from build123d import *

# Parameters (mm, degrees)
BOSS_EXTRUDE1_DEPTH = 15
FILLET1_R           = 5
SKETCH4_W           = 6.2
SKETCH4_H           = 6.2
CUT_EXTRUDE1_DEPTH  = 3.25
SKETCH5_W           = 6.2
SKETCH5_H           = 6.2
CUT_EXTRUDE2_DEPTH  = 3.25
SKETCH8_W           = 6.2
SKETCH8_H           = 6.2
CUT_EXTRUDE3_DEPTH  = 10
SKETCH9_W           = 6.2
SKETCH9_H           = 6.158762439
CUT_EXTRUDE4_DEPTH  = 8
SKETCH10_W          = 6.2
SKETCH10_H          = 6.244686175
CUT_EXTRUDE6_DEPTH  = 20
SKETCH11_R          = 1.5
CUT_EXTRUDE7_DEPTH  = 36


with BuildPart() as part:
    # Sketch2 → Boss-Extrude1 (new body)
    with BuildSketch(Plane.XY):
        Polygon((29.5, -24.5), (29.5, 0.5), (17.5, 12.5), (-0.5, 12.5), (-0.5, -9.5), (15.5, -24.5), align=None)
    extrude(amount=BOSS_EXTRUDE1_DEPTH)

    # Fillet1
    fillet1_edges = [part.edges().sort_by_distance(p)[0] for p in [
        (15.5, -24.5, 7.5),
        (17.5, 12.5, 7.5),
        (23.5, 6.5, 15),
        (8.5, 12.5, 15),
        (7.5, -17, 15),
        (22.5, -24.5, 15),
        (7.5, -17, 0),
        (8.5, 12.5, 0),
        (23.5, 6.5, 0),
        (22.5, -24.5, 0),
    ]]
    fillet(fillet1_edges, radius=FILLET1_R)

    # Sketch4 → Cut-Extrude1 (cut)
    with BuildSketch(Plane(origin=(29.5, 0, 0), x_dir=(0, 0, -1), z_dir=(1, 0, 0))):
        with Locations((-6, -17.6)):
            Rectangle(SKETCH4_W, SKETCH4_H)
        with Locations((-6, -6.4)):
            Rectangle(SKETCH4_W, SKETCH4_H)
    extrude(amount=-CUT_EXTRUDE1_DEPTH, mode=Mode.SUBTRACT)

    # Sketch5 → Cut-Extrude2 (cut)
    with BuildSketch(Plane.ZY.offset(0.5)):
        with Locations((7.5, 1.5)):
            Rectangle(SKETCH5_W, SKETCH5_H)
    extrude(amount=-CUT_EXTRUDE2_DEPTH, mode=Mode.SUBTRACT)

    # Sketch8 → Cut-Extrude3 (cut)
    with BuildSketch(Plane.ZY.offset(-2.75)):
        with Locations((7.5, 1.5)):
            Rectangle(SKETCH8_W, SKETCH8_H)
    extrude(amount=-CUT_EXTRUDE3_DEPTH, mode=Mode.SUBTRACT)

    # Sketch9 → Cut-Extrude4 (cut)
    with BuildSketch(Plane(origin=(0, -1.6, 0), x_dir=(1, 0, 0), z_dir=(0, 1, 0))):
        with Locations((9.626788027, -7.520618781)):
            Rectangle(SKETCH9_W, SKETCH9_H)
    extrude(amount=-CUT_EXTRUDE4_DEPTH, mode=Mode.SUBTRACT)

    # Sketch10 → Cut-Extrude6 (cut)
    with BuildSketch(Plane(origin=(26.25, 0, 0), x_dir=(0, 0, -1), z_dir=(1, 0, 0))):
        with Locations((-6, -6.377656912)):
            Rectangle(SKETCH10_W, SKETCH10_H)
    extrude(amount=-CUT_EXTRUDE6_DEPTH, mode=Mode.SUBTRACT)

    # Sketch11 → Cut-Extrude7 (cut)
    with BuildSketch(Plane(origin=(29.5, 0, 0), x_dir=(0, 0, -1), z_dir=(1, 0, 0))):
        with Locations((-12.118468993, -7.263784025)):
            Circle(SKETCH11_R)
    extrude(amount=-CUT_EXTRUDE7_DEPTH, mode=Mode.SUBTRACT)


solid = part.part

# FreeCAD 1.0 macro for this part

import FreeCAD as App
import Part
import Sketcher

V = App.Vector
Q = App.Units.Quantity


def edges_at(feature, points):
    """Names of the edges that pass closest to the given points."""
    edges = feature.Shape.Edges
    near = lambda p: min(range(len(edges)), key=lambda i: edges[i].distToShape(Part.Vertex(*p))[0])
    return sorted({f"Edge{near(p) + 1}" for p in points})

doc = App.newDocument("Part")
params = doc.addObject("Spreadsheet::Sheet", "Params")
for row, (alias, value) in enumerate([
    ("sketch1_width", "18 mm"),
    ("sketch1_width2", "14 mm"),
    ("sketch1_height", "25 mm"),
    ("sketch1_height2", "22 mm"),
    ("pad1_length", "15 mm"),
    ("fillet_radius", "5 mm"),
    ("sketch2_width", "6.2 mm"),
    ("pocket1_length", "3.25 mm"),
    ("sketch3_width", "6.2 mm"),
    ("pocket2_length", "3.25 mm"),
    ("sketch4_width", "6.2 mm"),
    ("pocket3_length", "10 mm"),
    ("sketch5_width", "6.2 mm"),
    ("pocket4_length", "8 mm"),
    ("sketch6_height", "6.2 mm"),
    ("pocket5_length", "20 mm"),
    ("sketch7_diameter", "3 mm"),
    ("pocket6_length", "36 mm"),
], start=1):
    params.set(f"A{row}", alias)
    params.set(f"B{row}", "=" + value)
    params.setAlias(f"B{row}", alias)

body = doc.addObject("PartDesign::Body", "Body")

sketch1 = doc.addObject("Sketcher::SketchObject", "Sketch")
body.addObject(sketch1)
sketch1.AttachmentSupport = (doc.XY_Plane, [""])
sketch1.MapMode = "FlatFace"
sketch1.addGeometry(Part.LineSegment(V(30, -24, 0), V(30, 0, 0)), False)
sketch1.addGeometry(Part.LineSegment(V(30, 0, 0), V(18, 12, 0)), False)
sketch1.addGeometry(Part.LineSegment(V(18, 12, 0), V(0, 12, 0)), False)
sketch1.addGeometry(Part.LineSegment(V(0, 12, 0), V(0, -10, 0)), False)
sketch1.addGeometry(Part.LineSegment(V(0, -10, 0), V(16, -24, 0)), False)
sketch1.addGeometry(Part.LineSegment(V(16, -24, 0), V(30, -24, 0)), False)
sketch1.addConstraint(Sketcher.Constraint("Coincident", 0, 2, 1, 1))
sketch1.addConstraint(Sketcher.Constraint("Coincident", 1, 2, 2, 1))
sketch1.addConstraint(Sketcher.Constraint("Coincident", 2, 2, 3, 1))
sketch1.addConstraint(Sketcher.Constraint("Coincident", 3, 2, 4, 1))
sketch1.addConstraint(Sketcher.Constraint("Coincident", 4, 2, 5, 1))
sketch1.addConstraint(Sketcher.Constraint("Coincident", 5, 2, 0, 1))
sketch1.addConstraint(Sketcher.Constraint("Vertical", 0))
sketch1.addConstraint(Sketcher.Constraint("Horizontal", 2))
sketch1.addConstraint(Sketcher.Constraint("Vertical", 3))
sketch1.addConstraint(Sketcher.Constraint("Horizontal", 5))
sketch1.addConstraint(Sketcher.Constraint("DistanceX", 2, 2, 2, 1, 18.0))
sketch1.addConstraint(Sketcher.Constraint("DistanceX", 5, 1, 5, 2, 14.0))
sketch1.addConstraint(Sketcher.Constraint("DistanceY", 0, 1, 0, 2, 25.0))
sketch1.addConstraint(Sketcher.Constraint("DistanceY", 3, 2, 3, 1, 22.0))
sketch1.addConstraint(Sketcher.Constraint("Angle", 1, Q("135 deg")))
sketch1.addConstraint(Sketcher.Constraint("DistanceX", 1, 2, 0, 2, 12.0))
sketch1.addConstraint(Sketcher.Constraint("DistanceX", -1, 1, 0, 2, 29.5))
sketch1.addConstraint(Sketcher.Constraint("DistanceY", -1, 1, 0, 2, 0.5))
sketch1.setExpression("Constraints[10]", "Params.sketch1_width")
sketch1.setExpression("Constraints[11]", "Params.sketch1_width2")
sketch1.setExpression("Constraints[12]", "Params.sketch1_height")
sketch1.setExpression("Constraints[13]", "Params.sketch1_height2")
pad1 = doc.addObject("PartDesign::Pad", "Pad")
body.addObject(pad1)
pad1.Profile = sketch1
pad1.setExpression("Length", "Params.pad1_length")
doc.recompute()

fillet = doc.addObject("PartDesign::Fillet", "Fillet")
body.addObject(fillet)
fillet.Base = (pad1, edges_at(pad1, [
    (15.5, -24.5, 7.5),
    (17.5, 12.5, 7.5),
    (23.5, 6.5, 15),
    (8.5, 12.5, 15),
    (7.5, -17, 15),
    (22.5, -24.5, 15),
    (7.5, -17, 0),
    (8.5, 12.5, 0),
    (23.5, 6.5, 0),
    (22.5, -24.5, 0),
]))
fillet.setExpression("Radius", "Params.fillet_radius")

sketch2 = doc.addObject("Sketcher::SketchObject", "Sketch001")
body.addObject(sketch2)
sketch2.AttachmentSupport = (doc.YZ_Plane, [""])
sketch2.MapMode = "FlatFace"
sketch2.AttachmentOffset = App.Placement(V(0, 0, 29.5), App.Rotation())
sketch2.addGeometry(Part.LineSegment(V(-14, 9, 0), V(-21, 9, 0)), False)
sketch2.addGeometry(Part.LineSegment(V(-21, 9, 0), V(-21, 3, 0)), False)
sketch2.addGeometry(Part.LineSegment(V(-21, 3, 0), V(-14, 3, 0)), False)
sketch2.addGeometry(Part.LineSegment(V(-14, 3, 0), V(-14, 9, 0)), False)
sketch2.addGeometry(Part.LineSegment(V(-3, 9, 0), V(-10, 9, 0)), False)
sketch2.addGeometry(Part.LineSegment(V(-10, 9, 0), V(-10, 3, 0)), False)
sketch2.addGeometry(Part.LineSegment(V(-10, 3, 0), V(-3, 3, 0)), False)
sketch2.addGeometry(Part.LineSegment(V(-3, 3, 0), V(-3, 9, 0)), False)
sketch2.addConstraint(Sketcher.Constraint("Coincident", 0, 2, 1, 1))
sketch2.addConstraint(Sketcher.Constraint("Coincident", 1, 2, 2, 1))
sketch2.addConstraint(Sketcher.Constraint("Coincident", 2, 2, 3, 1))
sketch2.addConstraint(Sketcher.Constraint("Coincident", 3, 2, 0, 1))
sketch2.addConstraint(Sketcher.Constraint("Coincident", 4, 2, 5, 1))
sketch2.addConstraint(Sketcher.Constraint("Coincident", 5, 2, 6, 1))
sketch2.addConstraint(Sketcher.Constraint("Coincident", 6, 2, 7, 1))
sketch2.addConstraint(Sketcher.Constraint("Coincident", 7, 2, 4, 1))
sketch2.addConstraint(Sketcher.Constraint("Horizontal", 0))
sketch2.addConstraint(Sketcher.Constraint("Vertical", 1))
sketch2.addConstraint(Sketcher.Constraint("Horizontal", 2))
sketch2.addConstraint(Sketcher.Constraint("Vertical", 3))
sketch2.addConstraint(Sketcher.Constraint("Horizontal", 4))
sketch2.addConstraint(Sketcher.Constraint("Vertical", 5))
sketch2.addConstraint(Sketcher.Constraint("Horizontal", 6))
sketch2.addConstraint(Sketcher.Constraint("Vertical", 7))
sketch2.addConstraint(Sketcher.Constraint("Horizontal", 3, 2, 4, 2))
sketch2.addConstraint(Sketcher.Constraint("Horizontal", 2, 2, 5, 2))
sketch2.addConstraint(Sketcher.Constraint("Equal", 2, 4))
sketch2.addConstraint(Sketcher.Constraint("Equal", 6, 1))
sketch2.addConstraint(Sketcher.Constraint("DistanceX", 0, 2, 0, 1, 6.2))
sketch2.addConstraint(Sketcher.Constraint("DistanceX", 3, 2, 4, 2, 5.0))
sketch2.addConstraint(Sketcher.Constraint("DistanceX", 0, 2, -1, 1, 20.7))
sketch2.addConstraint(Sketcher.Constraint("DistanceY", -1, 1, 0, 2, 9.1))
sketch2.setExpression("Constraints[20]", "Params.sketch2_width")
pocket1 = doc.addObject("PartDesign::Pocket", "Pocket")
body.addObject(pocket1)
pocket1.Profile = sketch2
pocket1.setExpression("Length", "Params.pocket1_length")

sketch3 = doc.addObject("Sketcher::SketchObject", "Sketch002")
body.addObject(sketch3)
sketch3.AttachmentSupport = (doc.YZ_Plane, [""])
sketch3.MapMode = "FlatFace"
sketch3.AttachmentOffset = App.Placement(V(0, 0, -0.5), App.Rotation())
sketch3.addGeometry(Part.LineSegment(V(5, 4, 0), V(-2, 4, 0)), False)
sketch3.addGeometry(Part.LineSegment(V(-2, 4, 0), V(-2, 11, 0)), False)
sketch3.addGeometry(Part.LineSegment(V(-2, 11, 0), V(5, 11, 0)), False)
sketch3.addGeometry(Part.LineSegment(V(5, 11, 0), V(5, 4, 0)), False)
sketch3.addConstraint(Sketcher.Constraint("Coincident", 0, 2, 1, 1))
sketch3.addConstraint(Sketcher.Constraint("Coincident", 1, 2, 2, 1))
sketch3.addConstraint(Sketcher.Constraint("Coincident", 2, 2, 3, 1))
sketch3.addConstraint(Sketcher.Constraint("Coincident", 3, 2, 0, 1))
sketch3.addConstraint(Sketcher.Constraint("Horizontal", 0))
sketch3.addConstraint(Sketcher.Constraint("Vertical", 1))
sketch3.addConstraint(Sketcher.Constraint("Horizontal", 2))
sketch3.addConstraint(Sketcher.Constraint("Vertical", 3))
sketch3.addConstraint(Sketcher.Constraint("Equal", 2, 1))
sketch3.addConstraint(Sketcher.Constraint("DistanceX", 0, 2, 0, 1, 6.2))
sketch3.addConstraint(Sketcher.Constraint("DistanceX", 0, 2, -1, 1, 1.6))
sketch3.addConstraint(Sketcher.Constraint("DistanceY", -1, 1, 0, 2, 4.4))
sketch3.setExpression("Constraints[9]", "Params.sketch3_width")
pocket2 = doc.addObject("PartDesign::Pocket", "Pocket001")
body.addObject(pocket2)
pocket2.Profile = sketch3
pocket2.setExpression("Length", "Params.pocket2_length")
pocket2.Reversed = True

sketch4 = doc.addObject("Sketcher::SketchObject", "Sketch003")
body.addObject(sketch4)
sketch4.AttachmentSupport = (doc.YZ_Plane, [""])
sketch4.MapMode = "FlatFace"
sketch4.AttachmentOffset = App.Placement(V(0, 0, 2.75), App.Rotation())
sketch4.addGeometry(Part.LineSegment(V(5, 4, 0), V(-2, 4, 0)), False)
sketch4.addGeometry(Part.LineSegment(V(-2, 4, 0), V(-2, 11, 0)), False)
sketch4.addGeometry(Part.LineSegment(V(-2, 11, 0), V(5, 11, 0)), False)
sketch4.addGeometry(Part.LineSegment(V(5, 11, 0), V(5, 4, 0)), False)
sketch4.addConstraint(Sketcher.Constraint("Coincident", 0, 2, 1, 1))
sketch4.addConstraint(Sketcher.Constraint("Coincident", 1, 2, 2, 1))
sketch4.addConstraint(Sketcher.Constraint("Coincident", 2, 2, 3, 1))
sketch4.addConstraint(Sketcher.Constraint("Coincident", 3, 2, 0, 1))
sketch4.addConstraint(Sketcher.Constraint("Horizontal", 0))
sketch4.addConstraint(Sketcher.Constraint("Vertical", 1))
sketch4.addConstraint(Sketcher.Constraint("Horizontal", 2))
sketch4.addConstraint(Sketcher.Constraint("Vertical", 3))
sketch4.addConstraint(Sketcher.Constraint("Equal", 2, 1))
sketch4.addConstraint(Sketcher.Constraint("DistanceX", 0, 2, 0, 1, 6.2))
sketch4.addConstraint(Sketcher.Constraint("DistanceX", 0, 2, -1, 1, 1.6))
sketch4.addConstraint(Sketcher.Constraint("DistanceY", -1, 1, 0, 2, 4.4))
sketch4.setExpression("Constraints[9]", "Params.sketch4_width")
pocket3 = doc.addObject("PartDesign::Pocket", "Pocket002")
body.addObject(pocket3)
pocket3.Profile = sketch4
pocket3.setExpression("Length", "Params.pocket3_length")
pocket3.Reversed = True

sketch5 = doc.addObject("Sketcher::SketchObject", "Sketch004")
body.addObject(sketch5)
sketch5.AttachmentSupport = (doc.XZ_Plane, [""])
sketch5.MapMode = "FlatFace"
sketch5.AttachmentOffset = App.Placement(V(0, 0, 1.6), App.Rotation())
sketch5.addGeometry(Part.LineSegment(V(7, 4, 0), V(7, 11, 0)), False)
sketch5.addGeometry(Part.LineSegment(V(7, 11, 0), V(13, 11, 0)), False)
sketch5.addGeometry(Part.LineSegment(V(13, 11, 0), V(13, 4, 0)), False)
sketch5.addGeometry(Part.LineSegment(V(13, 4, 0), V(7, 4, 0)), False)
sketch5.addConstraint(Sketcher.Constraint("Coincident", 0, 2, 1, 1))
sketch5.addConstraint(Sketcher.Constraint("Coincident", 1, 2, 2, 1))
sketch5.addConstraint(Sketcher.Constraint("Coincident", 2, 2, 3, 1))
sketch5.addConstraint(Sketcher.Constraint("Coincident", 3, 2, 0, 1))
sketch5.addConstraint(Sketcher.Constraint("Vertical", 0))
sketch5.addConstraint(Sketcher.Constraint("Horizontal", 1))
sketch5.addConstraint(Sketcher.Constraint("Vertical", 2))
sketch5.addConstraint(Sketcher.Constraint("Horizontal", 3))
sketch5.addConstraint(Sketcher.Constraint("DistanceX", 1, 1, 1, 2, 6.2))
sketch5.addConstraint(Sketcher.Constraint("DistanceY", -1, 1, 0, 2, 10.6))
sketch5.addConstraint(Sketcher.Constraint("DistanceY", 0, 1, 0, 2, 6.158762))
sketch5.addConstraint(Sketcher.Constraint("DistanceX", -1, 1, 0, 2, 6.526788))
sketch5.setExpression("Constraints[8]", "Params.sketch5_width")
pocket4 = doc.addObject("PartDesign::Pocket", "Pocket003")
body.addObject(pocket4)
pocket4.Profile = sketch5
pocket4.setExpression("Length", "Params.pocket4_length")
pocket4.Reversed = True

sketch6 = doc.addObject("Sketcher::SketchObject", "Sketch005")
body.addObject(sketch6)
sketch6.AttachmentSupport = (doc.YZ_Plane, [""])
sketch6.MapMode = "FlatFace"
sketch6.AttachmentOffset = App.Placement(V(0, 0, 26.25), App.Rotation())
sketch6.addGeometry(Part.LineSegment(V(-3, 9, 0), V(-9, 9, 0)), False)
sketch6.addGeometry(Part.LineSegment(V(-9, 9, 0), V(-9, 3, 0)), False)
sketch6.addGeometry(Part.LineSegment(V(-9, 3, 0), V(-3, 3, 0)), False)
sketch6.addGeometry(Part.LineSegment(V(-3, 3, 0), V(-3, 9, 0)), False)
sketch6.addConstraint(Sketcher.Constraint("Coincident", 0, 2, 1, 1))
sketch6.addConstraint(Sketcher.Constraint("Coincident", 1, 2, 2, 1))
sketch6.addConstraint(Sketcher.Constraint("Coincident", 2, 2, 3, 1))
sketch6.addConstraint(Sketcher.Constraint("Coincident", 3, 2, 0, 1))
sketch6.addConstraint(Sketcher.Constraint("Horizontal", 0))
sketch6.addConstraint(Sketcher.Constraint("Vertical", 1))
sketch6.addConstraint(Sketcher.Constraint("Horizontal", 2))
sketch6.addConstraint(Sketcher.Constraint("Vertical", 3))
sketch6.addConstraint(Sketcher.Constraint("DistanceY", 1, 2, 1, 1, 6.2))
sketch6.addConstraint(Sketcher.Constraint("DistanceX", 0, 2, -1, 1, 9.5))
sketch6.addConstraint(Sketcher.Constraint("DistanceY", -1, 1, 0, 2, 9.1))
sketch6.addConstraint(Sketcher.Constraint("DistanceX", 0, 2, 0, 1, 6.244686))
sketch6.setExpression("Constraints[8]", "Params.sketch6_height")
pocket5 = doc.addObject("PartDesign::Pocket", "Pocket004")
body.addObject(pocket5)
pocket5.Profile = sketch6
pocket5.setExpression("Length", "Params.pocket5_length")

sketch7 = doc.addObject("Sketcher::SketchObject", "Sketch006")
body.addObject(sketch7)
sketch7.AttachmentSupport = (doc.YZ_Plane, [""])
sketch7.MapMode = "FlatFace"
sketch7.AttachmentOffset = App.Placement(V(0, 0, 29.5), App.Rotation())
sketch7.addGeometry(Part.Circle(V(-7.3, 12.1, 0), V(0, 0, 1), 1.5), False)
sketch7.addConstraint(Sketcher.Constraint("Diameter", 0, 3.0))
sketch7.addConstraint(Sketcher.Constraint("DistanceY", -1, 1, 0, 3, 12.118469))
sketch7.addConstraint(Sketcher.Constraint("DistanceX", 0, 3, -1, 1, 7.263784))
sketch7.setExpression("Constraints[0]", "Params.sketch7_diameter")
pocket6 = doc.addObject("PartDesign::Pocket", "Pocket005")
body.addObject(pocket6)
pocket6.Profile = sketch7
pocket6.setExpression("Length", "Params.pocket6_length")

doc.recompute()
